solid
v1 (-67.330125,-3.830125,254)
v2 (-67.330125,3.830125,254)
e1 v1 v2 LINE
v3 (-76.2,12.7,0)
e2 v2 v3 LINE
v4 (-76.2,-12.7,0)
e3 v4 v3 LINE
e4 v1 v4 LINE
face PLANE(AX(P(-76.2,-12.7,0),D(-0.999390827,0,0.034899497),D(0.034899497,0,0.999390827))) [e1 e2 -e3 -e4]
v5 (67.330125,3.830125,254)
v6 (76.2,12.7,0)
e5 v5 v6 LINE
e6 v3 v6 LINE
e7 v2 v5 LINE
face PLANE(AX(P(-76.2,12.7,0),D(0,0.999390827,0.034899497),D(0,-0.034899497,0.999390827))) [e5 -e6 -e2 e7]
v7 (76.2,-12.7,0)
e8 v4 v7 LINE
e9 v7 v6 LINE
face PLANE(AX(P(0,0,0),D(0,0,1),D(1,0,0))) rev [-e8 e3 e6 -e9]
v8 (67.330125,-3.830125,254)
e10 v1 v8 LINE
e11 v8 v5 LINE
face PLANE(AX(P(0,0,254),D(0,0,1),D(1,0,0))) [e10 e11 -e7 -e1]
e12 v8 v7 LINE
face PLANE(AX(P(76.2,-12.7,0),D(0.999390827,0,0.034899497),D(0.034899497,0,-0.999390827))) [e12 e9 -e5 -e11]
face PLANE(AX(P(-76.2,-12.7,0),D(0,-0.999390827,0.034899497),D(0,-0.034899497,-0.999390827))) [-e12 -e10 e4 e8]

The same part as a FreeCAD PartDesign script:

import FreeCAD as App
import Part
import Sketcher
from FreeCAD import Vector
Q = App.Units.Quantity

doc = App.newDocument("Part")
body = doc.addObject("PartDesign::Body", "Body")

# Sketch on XY plane
sketch1 = body.newObject("Sketcher::SketchObject", "Sketch")
sketch1.AttachmentSupport = (doc.getObject("XY_Plane"), [""])
sketch1.MapMode = "FlatFace"
sketch1.addGeometry([
    Part.LineSegment(Vector(-76, 13, 0), Vector(-76, -13, 0)),
    Part.LineSegment(Vector(-76, -13, 0), Vector(76, -13, 0)),
    Part.LineSegment(Vector(76, -13, 0), Vector(76, 13, 0)),
    Part.LineSegment(Vector(76, 13, 0), Vector(-76, 13, 0)),
], False)
sketch1.addConstraint([
    Sketcher.Constraint("Coincident", 0, 2, 1, 1),
    Sketcher.Constraint("Coincident", 1, 2, 2, 1),
    Sketcher.Constraint("Coincident", 2, 2, 3, 1),
    Sketcher.Constraint("Coincident", 3, 2, 0, 1),
    Sketcher.Constraint("Vertical", 0),
    Sketcher.Constraint("Horizontal", 1),
    Sketcher.Constraint("Vertical", 2),
    Sketcher.Constraint("Horizontal", 3),
    Sketcher.Constraint("Symmetric", 0, 2, 2, 2, -1, 1),
    Sketcher.Constraint("DistanceX", 1, 1, 1, 2, Q("6 in")),
    Sketcher.Constraint("DistanceY", 0, 2, 0, 1, Q("1 in")),
])
pad1 = body.newObject("PartDesign::Pad", "Pad")
pad1.Profile = sketch1
pad1.Length = Q("10 in")
pad1.TaperAngle = -2

doc.recompute()
